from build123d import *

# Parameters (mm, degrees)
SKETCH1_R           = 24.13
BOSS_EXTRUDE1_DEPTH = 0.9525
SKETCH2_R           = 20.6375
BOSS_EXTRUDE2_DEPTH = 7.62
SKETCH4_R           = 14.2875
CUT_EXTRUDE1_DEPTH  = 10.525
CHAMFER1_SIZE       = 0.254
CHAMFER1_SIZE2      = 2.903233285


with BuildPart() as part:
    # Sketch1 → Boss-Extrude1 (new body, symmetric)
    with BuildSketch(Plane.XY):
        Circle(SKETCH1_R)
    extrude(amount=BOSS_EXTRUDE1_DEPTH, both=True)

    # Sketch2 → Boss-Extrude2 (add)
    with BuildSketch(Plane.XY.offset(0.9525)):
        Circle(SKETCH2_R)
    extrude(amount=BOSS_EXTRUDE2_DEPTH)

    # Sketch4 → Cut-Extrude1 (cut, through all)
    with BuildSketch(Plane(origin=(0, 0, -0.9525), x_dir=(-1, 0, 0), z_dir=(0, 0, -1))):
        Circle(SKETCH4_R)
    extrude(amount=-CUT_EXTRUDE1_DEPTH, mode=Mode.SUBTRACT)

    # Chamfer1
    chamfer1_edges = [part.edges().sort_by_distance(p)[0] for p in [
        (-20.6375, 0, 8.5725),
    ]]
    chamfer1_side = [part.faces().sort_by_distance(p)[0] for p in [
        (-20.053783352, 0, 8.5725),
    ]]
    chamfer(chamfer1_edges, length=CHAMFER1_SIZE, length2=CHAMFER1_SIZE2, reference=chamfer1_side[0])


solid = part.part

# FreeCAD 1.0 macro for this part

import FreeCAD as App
import Part
import Sketcher
from FreeCAD import Vector
Q = App.Units.Quantity


def edges_at(feature, points):
    """Names of the edges that pass closest to the given points."""
    edges = feature.Shape.Edges
    near = lambda p: min(range(len(edges)), key=lambda i: edges[i].distToShape(Part.Vertex(*p))[0])
    return sorted({f"Edge{near(p) + 1}" for p in points})

doc = App.newDocument("Part")
body = doc.addObject("PartDesign::Body", "Body")

# Sketch on XY plane
sketch1 = body.newObject("Sketcher::SketchObject", "Sketch")
sketch1.AttachmentSupport = (doc.getObject("XY_Plane"), [""])
sketch1.MapMode = "FlatFace"
sketch1.addGeometry(Part.Circle(Vector(0, 0, 0), Vector(0, 0, 1), 24.13), False)
sketch1.addConstraint([
    Sketcher.Constraint("Coincident", 0, 3, -1, 1),
    Sketcher.Constraint("Diameter", 0, Q("1.9 in")),
])
pad1 = body.newObject("PartDesign::Pad", "Pad")
pad1.Profile = sketch1
pad1.Length = Q("0.075 in")
pad1.Midplane = True

# Sketch on XY plane
sketch2 = body.newObject("Sketcher::SketchObject", "Sketch001")
sketch2.AttachmentSupport = (doc.getObject("XY_Plane"), [""])
sketch2.MapMode = "FlatFace"
sketch2.AttachmentOffset = App.Placement(Vector(0, 0, 0.0375 * 25.4), App.Rotation())
sketch2.addGeometry(Part.Circle(Vector(0, 0, 0), Vector(0, 0, 1), 20.6375), False)
sketch2.addConstraint([
    Sketcher.Constraint("Coincident", 0, 3, -1, 1),
    Sketcher.Constraint("Diameter", 0, Q("1.625 in")),
])
pad2 = body.newObject("PartDesign::Pad", "Pad001")
pad2.Profile = sketch2
pad2.Length = Q("0.3 in")

# Sketch on XY plane
sketch3 = body.newObject("Sketcher::SketchObject", "Sketch002")
sketch3.AttachmentSupport = (doc.getObject("XY_Plane"), [""])
sketch3.MapMode = "FlatFace"
sketch3.AttachmentOffset = App.Placement(Vector(0, 0, -0.0375 * 25.4), App.Rotation())
sketch3.addGeometry(Part.Circle(Vector(0, 0, 0), Vector(0, 0, 1), 14.2875), False)
sketch3.addConstraint([
    Sketcher.Constraint("Coincident", 0, 3, -1, 1),
    Sketcher.Constraint("Diameter", 0, Q("1.125 in")),
])
pocket1 = body.newObject("PartDesign::Pocket", "Pocket")
pocket1.Profile = sketch3
pocket1.Type = "ThroughAll"
pocket1.Reversed = True
doc.recompute()

chamfer = body.newObject("PartDesign::Chamfer", "Chamfer")
chamfer.Base = (pocket1, edges_at(pocket1, [(-20.637, 0, 8.572)]))
chamfer.ChamferType = "Two distances"
chamfer.Size = Q("0.01 in")
chamfer.Size2 = 2.903233
chamfer.FlipDirection = True

doc.recompute()
